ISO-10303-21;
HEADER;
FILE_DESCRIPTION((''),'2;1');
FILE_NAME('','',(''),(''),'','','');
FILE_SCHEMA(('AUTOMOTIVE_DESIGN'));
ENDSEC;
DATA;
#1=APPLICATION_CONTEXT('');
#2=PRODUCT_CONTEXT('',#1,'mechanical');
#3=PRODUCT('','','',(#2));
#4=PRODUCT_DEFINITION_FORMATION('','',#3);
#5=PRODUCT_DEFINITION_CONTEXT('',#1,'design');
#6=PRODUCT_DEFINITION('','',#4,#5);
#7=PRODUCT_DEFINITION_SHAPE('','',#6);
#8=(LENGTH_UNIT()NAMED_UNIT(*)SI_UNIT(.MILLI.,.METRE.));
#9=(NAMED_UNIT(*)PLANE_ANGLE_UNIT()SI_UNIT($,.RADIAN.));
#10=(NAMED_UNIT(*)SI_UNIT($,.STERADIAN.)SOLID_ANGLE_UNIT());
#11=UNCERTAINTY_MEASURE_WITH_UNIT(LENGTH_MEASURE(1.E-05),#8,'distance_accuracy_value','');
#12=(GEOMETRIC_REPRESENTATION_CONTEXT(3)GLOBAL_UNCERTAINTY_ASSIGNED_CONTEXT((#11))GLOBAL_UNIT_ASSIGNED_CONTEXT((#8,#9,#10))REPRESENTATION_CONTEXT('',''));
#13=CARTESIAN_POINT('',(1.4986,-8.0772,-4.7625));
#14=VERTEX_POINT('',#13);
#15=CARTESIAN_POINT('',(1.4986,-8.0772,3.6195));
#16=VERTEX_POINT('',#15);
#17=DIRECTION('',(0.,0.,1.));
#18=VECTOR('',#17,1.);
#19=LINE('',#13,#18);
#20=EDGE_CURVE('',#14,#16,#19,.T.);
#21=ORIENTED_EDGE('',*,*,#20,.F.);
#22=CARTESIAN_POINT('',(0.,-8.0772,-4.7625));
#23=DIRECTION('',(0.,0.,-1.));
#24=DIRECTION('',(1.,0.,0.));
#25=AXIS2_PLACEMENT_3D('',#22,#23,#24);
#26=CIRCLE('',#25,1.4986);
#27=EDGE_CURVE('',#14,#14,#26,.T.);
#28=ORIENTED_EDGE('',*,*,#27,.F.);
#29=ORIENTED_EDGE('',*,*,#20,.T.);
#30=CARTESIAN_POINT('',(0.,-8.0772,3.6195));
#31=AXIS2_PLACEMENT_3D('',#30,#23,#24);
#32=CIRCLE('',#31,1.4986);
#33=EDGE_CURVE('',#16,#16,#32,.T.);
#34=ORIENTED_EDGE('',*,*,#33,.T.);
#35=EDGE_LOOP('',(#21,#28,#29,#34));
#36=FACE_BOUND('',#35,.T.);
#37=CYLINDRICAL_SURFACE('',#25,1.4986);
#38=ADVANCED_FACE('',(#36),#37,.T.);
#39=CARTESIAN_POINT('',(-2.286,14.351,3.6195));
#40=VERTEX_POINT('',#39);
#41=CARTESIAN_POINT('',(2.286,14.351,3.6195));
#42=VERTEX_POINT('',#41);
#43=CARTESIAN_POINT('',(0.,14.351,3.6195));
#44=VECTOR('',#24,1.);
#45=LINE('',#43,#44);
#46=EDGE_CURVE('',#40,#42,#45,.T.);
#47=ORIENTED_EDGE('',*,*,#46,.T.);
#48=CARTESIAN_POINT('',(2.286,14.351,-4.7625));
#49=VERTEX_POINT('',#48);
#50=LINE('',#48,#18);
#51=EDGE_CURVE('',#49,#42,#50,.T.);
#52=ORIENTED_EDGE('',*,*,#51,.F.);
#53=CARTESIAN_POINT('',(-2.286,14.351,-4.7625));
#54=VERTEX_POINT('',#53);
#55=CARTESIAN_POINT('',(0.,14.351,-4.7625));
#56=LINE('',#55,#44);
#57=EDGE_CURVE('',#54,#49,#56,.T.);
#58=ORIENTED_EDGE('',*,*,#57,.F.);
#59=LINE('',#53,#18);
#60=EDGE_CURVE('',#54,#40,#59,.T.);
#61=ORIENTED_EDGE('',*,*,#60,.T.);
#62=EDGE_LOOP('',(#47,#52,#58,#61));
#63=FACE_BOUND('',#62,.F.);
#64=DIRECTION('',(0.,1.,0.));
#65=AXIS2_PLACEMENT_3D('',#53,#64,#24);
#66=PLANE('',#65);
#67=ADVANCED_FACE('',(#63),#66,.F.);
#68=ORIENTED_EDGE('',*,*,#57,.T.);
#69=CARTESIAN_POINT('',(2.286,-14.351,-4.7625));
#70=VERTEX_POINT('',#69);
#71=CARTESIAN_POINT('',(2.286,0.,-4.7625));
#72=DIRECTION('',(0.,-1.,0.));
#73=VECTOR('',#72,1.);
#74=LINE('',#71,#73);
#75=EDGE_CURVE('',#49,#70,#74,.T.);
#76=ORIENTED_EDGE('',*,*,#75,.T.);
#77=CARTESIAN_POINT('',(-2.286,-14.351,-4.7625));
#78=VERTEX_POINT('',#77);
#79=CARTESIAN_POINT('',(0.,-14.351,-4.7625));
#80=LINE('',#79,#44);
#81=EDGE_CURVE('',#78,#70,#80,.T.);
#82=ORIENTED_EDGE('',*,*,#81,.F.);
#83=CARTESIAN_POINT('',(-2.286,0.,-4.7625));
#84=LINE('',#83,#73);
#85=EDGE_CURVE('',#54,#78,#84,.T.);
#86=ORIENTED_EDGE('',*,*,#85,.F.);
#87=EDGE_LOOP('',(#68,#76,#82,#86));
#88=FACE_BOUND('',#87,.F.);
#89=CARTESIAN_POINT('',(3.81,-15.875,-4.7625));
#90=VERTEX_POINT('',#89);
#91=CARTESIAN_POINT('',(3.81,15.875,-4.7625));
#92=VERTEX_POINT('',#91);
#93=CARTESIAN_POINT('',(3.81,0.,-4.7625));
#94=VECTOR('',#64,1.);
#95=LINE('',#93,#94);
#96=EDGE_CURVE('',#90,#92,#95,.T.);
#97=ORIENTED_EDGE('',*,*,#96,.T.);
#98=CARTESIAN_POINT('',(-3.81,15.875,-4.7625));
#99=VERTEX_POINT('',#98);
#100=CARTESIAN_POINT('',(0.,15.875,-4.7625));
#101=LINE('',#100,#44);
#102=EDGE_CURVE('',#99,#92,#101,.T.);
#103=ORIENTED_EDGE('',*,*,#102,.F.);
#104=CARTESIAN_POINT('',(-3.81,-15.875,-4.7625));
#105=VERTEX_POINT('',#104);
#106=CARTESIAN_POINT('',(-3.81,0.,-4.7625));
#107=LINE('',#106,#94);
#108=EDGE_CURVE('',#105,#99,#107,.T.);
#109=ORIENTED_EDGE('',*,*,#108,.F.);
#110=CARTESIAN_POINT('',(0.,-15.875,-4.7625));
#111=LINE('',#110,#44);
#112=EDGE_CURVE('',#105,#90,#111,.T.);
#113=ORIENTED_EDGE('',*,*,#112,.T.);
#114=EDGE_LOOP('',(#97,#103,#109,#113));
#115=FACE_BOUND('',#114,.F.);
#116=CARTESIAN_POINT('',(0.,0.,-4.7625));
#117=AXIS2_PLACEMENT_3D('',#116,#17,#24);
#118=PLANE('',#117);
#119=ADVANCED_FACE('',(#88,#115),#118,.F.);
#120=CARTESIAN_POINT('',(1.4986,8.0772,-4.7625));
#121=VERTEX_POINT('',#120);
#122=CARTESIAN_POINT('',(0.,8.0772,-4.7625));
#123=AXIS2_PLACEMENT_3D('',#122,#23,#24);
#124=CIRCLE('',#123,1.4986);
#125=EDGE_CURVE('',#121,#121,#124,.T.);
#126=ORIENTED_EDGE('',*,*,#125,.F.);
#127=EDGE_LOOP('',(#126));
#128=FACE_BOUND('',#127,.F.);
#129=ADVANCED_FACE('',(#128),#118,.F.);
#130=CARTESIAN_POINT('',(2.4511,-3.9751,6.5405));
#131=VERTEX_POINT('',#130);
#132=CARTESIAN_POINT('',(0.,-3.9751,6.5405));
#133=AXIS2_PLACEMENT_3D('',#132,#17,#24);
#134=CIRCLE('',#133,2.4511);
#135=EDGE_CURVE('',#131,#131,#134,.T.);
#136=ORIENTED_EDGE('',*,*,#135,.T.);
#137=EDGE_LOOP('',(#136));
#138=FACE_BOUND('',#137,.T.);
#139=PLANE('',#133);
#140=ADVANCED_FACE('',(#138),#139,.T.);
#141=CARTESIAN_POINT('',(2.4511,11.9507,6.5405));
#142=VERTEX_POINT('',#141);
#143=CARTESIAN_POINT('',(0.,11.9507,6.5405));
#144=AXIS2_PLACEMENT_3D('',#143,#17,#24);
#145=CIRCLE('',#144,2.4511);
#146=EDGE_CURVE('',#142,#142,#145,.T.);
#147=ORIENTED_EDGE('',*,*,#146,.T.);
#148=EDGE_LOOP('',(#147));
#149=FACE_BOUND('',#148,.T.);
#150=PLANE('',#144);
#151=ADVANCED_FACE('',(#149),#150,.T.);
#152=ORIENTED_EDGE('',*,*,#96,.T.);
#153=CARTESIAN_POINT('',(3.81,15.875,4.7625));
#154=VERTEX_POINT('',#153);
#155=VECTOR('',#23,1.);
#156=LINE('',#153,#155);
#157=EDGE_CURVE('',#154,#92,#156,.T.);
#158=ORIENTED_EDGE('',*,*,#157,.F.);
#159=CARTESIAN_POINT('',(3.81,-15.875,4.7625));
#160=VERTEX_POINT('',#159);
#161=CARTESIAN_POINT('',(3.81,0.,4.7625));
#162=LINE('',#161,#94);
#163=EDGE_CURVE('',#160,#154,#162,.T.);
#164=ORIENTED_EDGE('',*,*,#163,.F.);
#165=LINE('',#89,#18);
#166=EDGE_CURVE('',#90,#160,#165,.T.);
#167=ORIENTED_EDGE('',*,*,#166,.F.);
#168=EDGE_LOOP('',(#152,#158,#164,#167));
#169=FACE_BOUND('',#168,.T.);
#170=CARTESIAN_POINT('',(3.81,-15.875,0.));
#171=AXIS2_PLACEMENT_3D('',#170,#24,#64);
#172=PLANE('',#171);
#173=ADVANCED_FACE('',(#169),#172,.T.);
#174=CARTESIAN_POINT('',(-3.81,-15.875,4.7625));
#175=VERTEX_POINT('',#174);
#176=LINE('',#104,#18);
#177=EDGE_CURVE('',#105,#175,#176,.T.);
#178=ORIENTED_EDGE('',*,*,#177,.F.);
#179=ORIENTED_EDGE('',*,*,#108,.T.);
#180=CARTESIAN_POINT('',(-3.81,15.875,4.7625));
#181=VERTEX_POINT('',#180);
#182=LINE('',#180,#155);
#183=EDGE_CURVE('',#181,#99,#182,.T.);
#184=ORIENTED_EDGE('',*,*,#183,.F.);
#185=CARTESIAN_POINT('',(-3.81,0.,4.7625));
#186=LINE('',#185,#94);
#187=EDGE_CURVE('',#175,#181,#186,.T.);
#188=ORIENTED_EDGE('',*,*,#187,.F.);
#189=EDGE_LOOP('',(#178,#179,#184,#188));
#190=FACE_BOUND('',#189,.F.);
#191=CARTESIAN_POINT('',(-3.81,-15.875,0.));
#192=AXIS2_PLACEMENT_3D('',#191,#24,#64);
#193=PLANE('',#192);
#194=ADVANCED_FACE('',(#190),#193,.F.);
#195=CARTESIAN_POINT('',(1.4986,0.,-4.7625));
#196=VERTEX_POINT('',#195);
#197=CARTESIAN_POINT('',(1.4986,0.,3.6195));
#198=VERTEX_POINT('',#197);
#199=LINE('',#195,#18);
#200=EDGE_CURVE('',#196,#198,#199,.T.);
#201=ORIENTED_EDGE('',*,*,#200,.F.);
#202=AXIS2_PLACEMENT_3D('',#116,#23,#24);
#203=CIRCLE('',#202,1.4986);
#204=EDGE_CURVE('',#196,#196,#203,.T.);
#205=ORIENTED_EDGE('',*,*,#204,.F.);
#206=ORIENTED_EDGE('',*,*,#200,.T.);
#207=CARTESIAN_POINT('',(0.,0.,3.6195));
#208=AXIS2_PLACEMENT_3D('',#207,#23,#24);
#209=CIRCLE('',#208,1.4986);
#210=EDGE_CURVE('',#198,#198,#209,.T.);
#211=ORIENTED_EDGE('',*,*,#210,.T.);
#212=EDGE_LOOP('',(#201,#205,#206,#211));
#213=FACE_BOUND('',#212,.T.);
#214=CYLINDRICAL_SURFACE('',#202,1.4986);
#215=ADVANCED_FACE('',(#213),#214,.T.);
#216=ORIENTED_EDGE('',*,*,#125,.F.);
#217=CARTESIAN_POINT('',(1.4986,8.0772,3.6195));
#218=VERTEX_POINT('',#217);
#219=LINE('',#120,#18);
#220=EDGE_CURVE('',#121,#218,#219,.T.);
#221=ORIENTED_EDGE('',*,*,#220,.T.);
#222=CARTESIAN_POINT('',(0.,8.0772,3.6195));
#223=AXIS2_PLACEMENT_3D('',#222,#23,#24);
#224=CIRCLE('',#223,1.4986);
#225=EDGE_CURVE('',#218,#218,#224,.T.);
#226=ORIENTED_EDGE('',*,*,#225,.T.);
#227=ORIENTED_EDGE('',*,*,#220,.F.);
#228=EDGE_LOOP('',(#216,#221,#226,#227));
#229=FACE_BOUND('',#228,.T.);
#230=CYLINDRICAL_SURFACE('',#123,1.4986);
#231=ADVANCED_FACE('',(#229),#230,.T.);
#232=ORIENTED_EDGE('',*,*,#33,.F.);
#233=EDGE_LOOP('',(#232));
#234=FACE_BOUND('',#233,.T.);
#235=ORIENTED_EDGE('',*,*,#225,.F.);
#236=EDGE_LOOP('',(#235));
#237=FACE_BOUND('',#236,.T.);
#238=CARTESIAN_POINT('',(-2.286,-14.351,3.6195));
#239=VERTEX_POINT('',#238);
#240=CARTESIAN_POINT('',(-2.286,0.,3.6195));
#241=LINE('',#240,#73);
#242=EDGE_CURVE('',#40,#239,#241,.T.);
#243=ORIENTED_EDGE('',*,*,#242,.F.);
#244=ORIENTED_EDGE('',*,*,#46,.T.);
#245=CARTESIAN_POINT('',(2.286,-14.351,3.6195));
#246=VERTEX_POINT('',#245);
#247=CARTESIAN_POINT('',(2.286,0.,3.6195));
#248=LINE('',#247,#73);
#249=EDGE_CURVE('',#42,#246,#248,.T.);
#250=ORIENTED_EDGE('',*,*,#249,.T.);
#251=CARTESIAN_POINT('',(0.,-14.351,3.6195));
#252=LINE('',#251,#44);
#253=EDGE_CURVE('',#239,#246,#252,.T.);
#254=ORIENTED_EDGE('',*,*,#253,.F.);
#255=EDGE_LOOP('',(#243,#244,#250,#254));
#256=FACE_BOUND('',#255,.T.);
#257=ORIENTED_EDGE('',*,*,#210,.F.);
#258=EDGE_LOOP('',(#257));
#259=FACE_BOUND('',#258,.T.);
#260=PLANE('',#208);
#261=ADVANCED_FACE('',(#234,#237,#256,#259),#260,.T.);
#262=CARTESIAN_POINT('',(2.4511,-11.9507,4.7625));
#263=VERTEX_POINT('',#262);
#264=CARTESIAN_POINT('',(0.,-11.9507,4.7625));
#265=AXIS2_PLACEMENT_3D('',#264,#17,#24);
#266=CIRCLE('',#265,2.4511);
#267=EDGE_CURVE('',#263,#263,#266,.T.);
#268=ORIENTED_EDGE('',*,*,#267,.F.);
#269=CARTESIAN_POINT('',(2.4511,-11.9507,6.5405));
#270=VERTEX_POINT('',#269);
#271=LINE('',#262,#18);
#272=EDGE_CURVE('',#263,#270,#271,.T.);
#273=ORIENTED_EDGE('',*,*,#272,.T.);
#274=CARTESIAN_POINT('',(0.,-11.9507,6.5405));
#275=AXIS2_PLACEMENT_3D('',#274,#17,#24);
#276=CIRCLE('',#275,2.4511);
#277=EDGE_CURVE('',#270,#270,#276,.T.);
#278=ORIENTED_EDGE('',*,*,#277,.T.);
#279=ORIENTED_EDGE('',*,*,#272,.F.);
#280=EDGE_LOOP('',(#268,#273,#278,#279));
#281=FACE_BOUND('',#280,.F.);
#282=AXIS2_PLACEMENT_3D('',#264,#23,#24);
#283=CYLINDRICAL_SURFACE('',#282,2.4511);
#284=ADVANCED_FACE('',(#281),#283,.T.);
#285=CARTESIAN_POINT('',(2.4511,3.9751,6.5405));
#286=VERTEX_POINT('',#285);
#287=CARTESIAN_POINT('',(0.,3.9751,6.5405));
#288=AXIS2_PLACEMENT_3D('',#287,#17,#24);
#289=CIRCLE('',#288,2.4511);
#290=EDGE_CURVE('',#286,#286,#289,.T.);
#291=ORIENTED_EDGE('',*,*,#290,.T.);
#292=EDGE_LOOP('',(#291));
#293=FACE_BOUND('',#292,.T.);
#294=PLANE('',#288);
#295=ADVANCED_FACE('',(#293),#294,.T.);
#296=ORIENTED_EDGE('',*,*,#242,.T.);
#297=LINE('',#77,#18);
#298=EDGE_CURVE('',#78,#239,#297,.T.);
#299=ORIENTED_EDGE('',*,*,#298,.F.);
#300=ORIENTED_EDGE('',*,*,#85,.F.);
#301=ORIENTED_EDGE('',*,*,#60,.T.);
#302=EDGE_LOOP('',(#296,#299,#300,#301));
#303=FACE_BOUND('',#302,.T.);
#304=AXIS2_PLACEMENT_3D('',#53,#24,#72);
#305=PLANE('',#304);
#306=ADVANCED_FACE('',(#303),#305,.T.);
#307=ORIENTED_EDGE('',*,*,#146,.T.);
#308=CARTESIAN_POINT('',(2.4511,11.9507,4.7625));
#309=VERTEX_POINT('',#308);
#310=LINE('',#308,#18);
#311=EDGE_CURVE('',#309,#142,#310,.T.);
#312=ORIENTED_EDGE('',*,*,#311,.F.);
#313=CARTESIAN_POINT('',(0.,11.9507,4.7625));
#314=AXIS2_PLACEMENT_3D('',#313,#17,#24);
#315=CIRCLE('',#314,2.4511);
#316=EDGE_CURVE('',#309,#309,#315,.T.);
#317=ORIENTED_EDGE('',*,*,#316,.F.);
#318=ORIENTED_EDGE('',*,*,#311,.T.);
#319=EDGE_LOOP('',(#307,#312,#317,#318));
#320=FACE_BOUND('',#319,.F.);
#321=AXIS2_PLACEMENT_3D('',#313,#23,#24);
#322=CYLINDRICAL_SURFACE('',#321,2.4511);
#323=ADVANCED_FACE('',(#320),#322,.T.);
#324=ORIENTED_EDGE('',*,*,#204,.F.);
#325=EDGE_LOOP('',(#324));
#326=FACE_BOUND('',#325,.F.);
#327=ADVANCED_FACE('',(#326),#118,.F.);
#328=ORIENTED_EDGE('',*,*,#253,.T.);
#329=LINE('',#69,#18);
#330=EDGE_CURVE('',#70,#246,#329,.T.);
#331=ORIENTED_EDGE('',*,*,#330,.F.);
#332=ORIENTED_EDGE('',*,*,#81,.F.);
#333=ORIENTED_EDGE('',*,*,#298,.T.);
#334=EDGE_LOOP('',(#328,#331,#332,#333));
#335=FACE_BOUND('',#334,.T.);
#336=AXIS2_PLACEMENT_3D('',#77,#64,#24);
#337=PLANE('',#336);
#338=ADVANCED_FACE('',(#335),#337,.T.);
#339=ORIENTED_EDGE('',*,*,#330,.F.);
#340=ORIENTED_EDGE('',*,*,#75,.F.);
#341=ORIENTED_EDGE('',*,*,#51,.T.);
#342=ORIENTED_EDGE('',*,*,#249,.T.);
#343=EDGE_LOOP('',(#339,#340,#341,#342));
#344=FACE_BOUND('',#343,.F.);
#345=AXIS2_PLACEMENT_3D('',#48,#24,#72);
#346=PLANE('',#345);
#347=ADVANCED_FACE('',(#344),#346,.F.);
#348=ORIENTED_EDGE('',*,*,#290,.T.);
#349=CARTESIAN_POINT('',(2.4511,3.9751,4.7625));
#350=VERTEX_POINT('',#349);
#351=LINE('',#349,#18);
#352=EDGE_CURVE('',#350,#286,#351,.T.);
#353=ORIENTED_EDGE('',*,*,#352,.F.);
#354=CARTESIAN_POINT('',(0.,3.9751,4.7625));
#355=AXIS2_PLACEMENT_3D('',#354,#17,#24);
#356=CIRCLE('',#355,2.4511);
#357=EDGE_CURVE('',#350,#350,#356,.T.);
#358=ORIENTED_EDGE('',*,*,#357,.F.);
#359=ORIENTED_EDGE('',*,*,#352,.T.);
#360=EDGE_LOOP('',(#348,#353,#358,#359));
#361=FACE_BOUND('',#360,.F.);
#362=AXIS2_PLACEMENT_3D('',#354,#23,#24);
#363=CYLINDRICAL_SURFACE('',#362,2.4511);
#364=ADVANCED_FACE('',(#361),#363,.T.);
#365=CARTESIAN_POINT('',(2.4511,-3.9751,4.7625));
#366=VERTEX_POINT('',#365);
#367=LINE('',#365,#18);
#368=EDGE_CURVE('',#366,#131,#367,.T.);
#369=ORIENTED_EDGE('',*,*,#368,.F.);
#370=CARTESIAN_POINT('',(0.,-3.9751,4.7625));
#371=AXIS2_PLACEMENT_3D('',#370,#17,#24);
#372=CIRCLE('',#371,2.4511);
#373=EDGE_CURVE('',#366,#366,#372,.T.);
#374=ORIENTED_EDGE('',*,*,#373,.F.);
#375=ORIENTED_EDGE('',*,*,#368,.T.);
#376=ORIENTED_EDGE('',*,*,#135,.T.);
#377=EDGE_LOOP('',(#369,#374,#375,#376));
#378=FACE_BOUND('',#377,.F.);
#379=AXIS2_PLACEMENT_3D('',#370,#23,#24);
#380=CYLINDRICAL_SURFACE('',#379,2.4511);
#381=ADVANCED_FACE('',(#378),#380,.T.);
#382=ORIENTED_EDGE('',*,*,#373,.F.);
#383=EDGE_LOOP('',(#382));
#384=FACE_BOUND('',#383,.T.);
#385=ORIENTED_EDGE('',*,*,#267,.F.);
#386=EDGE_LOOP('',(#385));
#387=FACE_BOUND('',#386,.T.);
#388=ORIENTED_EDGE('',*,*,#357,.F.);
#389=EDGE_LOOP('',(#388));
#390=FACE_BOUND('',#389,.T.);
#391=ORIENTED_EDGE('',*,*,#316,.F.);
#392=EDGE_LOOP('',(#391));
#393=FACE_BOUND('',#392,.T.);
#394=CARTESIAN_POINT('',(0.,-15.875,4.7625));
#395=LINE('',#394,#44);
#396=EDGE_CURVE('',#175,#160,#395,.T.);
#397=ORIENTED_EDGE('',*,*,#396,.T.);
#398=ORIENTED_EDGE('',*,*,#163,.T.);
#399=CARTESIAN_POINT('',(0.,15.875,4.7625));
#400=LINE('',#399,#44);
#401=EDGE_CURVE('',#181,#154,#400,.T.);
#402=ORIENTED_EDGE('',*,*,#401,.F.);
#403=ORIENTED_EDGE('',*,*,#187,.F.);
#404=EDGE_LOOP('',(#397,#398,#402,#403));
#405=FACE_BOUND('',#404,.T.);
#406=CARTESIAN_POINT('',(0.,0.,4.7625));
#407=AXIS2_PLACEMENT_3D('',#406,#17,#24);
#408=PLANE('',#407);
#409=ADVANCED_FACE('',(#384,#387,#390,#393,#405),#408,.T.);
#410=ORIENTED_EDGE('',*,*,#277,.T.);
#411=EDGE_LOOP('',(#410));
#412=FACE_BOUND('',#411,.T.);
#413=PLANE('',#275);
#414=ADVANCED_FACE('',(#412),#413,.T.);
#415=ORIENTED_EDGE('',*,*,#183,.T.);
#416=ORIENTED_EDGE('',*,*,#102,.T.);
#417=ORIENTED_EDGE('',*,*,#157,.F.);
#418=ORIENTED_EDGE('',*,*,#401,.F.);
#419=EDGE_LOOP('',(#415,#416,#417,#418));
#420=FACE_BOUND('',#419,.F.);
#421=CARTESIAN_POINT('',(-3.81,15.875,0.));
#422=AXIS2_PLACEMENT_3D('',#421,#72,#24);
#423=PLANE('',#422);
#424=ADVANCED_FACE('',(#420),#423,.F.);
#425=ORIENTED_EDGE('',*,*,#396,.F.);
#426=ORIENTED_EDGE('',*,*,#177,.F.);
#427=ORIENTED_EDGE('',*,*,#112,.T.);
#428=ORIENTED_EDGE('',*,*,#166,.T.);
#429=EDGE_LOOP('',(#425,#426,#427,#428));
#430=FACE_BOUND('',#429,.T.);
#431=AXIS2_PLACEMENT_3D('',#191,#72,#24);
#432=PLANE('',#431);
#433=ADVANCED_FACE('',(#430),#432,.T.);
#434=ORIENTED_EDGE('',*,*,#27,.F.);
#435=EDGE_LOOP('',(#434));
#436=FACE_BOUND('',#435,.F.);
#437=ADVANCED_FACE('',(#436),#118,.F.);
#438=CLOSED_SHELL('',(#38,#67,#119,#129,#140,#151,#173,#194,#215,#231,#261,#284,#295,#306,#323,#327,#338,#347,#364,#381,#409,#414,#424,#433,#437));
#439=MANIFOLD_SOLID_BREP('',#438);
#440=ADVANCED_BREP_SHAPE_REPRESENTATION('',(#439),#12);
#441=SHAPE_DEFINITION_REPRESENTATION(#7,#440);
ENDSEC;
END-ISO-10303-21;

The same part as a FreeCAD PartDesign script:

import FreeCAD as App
import Part
import Sketcher
from FreeCAD import Vector
Q = App.Units.Quantity

doc = App.newDocument("Part")
body = doc.addObject("PartDesign::Body", "Body")

# Sketch on XY plane
sketch1 = body.newObject("Sketcher::SketchObject", "Sketch")
sketch1.AttachmentSupport = (doc.getObject("XY_Plane"), [""])
sketch1.MapMode = "FlatFace"
sketch1.addGeometry(Part.LineSegment(Vector(-3.81, 15.875, 0), Vector(-3.81, -15.875, 0)), False)
sketch1.addGeometry(Part.LineSegment(Vector(-3.81, -15.875, 0), Vector(3.81, -15.875, 0)), False)
sketch1.addGeometry(Part.LineSegment(Vector(3.81, -15.875, 0), Vector(3.81, 15.875, 0)), False)
sketch1.addGeometry(Part.LineSegment(Vector(3.81, 15.875, 0), Vector(-3.81, 15.875, 0)), False)
sketch1.addConstraint(Sketcher.Constraint("Coincident", 0, 2, 1, 1))
sketch1.addConstraint(Sketcher.Constraint("Coincident", 1, 2, 2, 1))
sketch1.addConstraint(Sketcher.Constraint("Coincident", 2, 2, 3, 1))
sketch1.addConstraint(Sketcher.Constraint("Coincident", 3, 2, 0, 1))
sketch1.addConstraint(Sketcher.Constraint("Vertical", 0))
sketch1.addConstraint(Sketcher.Constraint("Horizontal", 1))
sketch1.addConstraint(Sketcher.Constraint("Vertical", 2))
sketch1.addConstraint(Sketcher.Constraint("Horizontal", 3))
sketch1.addConstraint(Sketcher.Constraint("Symmetric", 0, 2, 2, 2, -1, 1))
sketch1.addConstraint(Sketcher.Constraint("DistanceX", 1, 1, 1, 2, Q("0.3 in")))
sketch1.addConstraint(Sketcher.Constraint("DistanceY", 0, 2, 0, 1, Q("1.25 in")))
pad1 = body.newObject("PartDesign::Pad", "Pad")
pad1.Profile = sketch1
pad1.Length = Q("0.375 in")
pad1.Midplane = True

# Sketch on XY plane
sketch2 = body.newObject("Sketcher::SketchObject", "Sketch001")
sketch2.AttachmentSupport = (doc.getObject("XY_Plane"), [""])
sketch2.MapMode = "FlatFace"
sketch2.AttachmentOffset = App.Placement(Vector(0, 0, 0.1875 * 25.4), App.Rotation())
sketch2.addGeometry(Part.Circle(Vector(0, 11.9507, 0), Vector(0, 0, 1), 2.4511), False)
sketch2.addGeometry(Part.Circle(Vector(0, 3.9751, 0), Vector(0, 0, 1), 2.4511), False)
sketch2.addGeometry(Part.Circle(Vector(0, -3.9751, 0), Vector(0, 0, 1), 2.4511), False)
sketch2.addGeometry(Part.Circle(Vector(0, -11.9507, 0), Vector(0, 0, 1), 2.4511), False)
sketch2.addConstraint(Sketcher.Constraint("Equal", 0, 1))
sketch2.addConstraint(Sketcher.Constraint("Equal", 1, 2))
sketch2.addConstraint(Sketcher.Constraint("Equal", 2, 3))
sketch2.addConstraint(Sketcher.Constraint("Symmetric", 1, 3, 2, 3, -1, 1))
sketch2.addConstraint(Sketcher.Constraint("Symmetric", 0, 3, 3, 3, -1, 1))
sketch2.addConstraint(Sketcher.Constraint("PointOnObject", 0, 3, -2))
sketch2.addConstraint(Sketcher.Constraint("PointOnObject", 1, 3, -2))
sketch2.addConstraint(Sketcher.Constraint("Diameter", 0, Q("0.193 in")))
sketch2.addConstraint(Sketcher.Constraint("DistanceY", 1, 3, 0, 3, Q("0.314 in")))
sketch2.addConstraint(Sketcher.Constraint("DistanceY", 2, 3, 1, 3, Q("0.313 in")))
pad2 = body.newObject("PartDesign::Pad", "Pad001")
pad2.Profile = sketch2
pad2.Length = Q("0.07 in")

# Sketch on XY plane
sketch3 = body.newObject("Sketcher::SketchObject", "Sketch002")
sketch3.AttachmentSupport = (doc.getObject("XY_Plane"), [""])
sketch3.MapMode = "FlatFace"
sketch3.AttachmentOffset = App.Placement(Vector(0, 0, -0.1875 * 25.4), App.Rotation())
sketch3.addGeometry(Part.LineSegment(Vector(-2.286, -14.351, 0), Vector(-2.286, 14.351, 0)), False)
sketch3.addGeometry(Part.LineSegment(Vector(-2.286, 14.351, 0), Vector(2.286, 14.351, 0)), False)
sketch3.addGeometry(Part.LineSegment(Vector(2.286, 14.351, 0), Vector(2.286, -14.351, 0)), False)
sketch3.addGeometry(Part.LineSegment(Vector(2.286, -14.351, 0), Vector(-2.286, -14.351, 0)), False)
sketch3.addGeometry(Part.Circle(Vector(0, 8.0772, 0), Vector(0, 0, 1), 1.4986), False)
sketch3.addGeometry(Part.Circle(Vector(0, 0, 0), Vector(0, 0, 1), 1.4986), False)
sketch3.addGeometry(Part.Circle(Vector(0, -8.0772, 0), Vector(0, 0, 1), 1.4986), False)
sketch3.addConstraint(Sketcher.Constraint("Coincident", 0, 2, 1, 1))
sketch3.addConstraint(Sketcher.Constraint("Coincident", 1, 2, 2, 1))
sketch3.addConstraint(Sketcher.Constraint("Coincident", 2, 2, 3, 1))
sketch3.addConstraint(Sketcher.Constraint("Coincident", 3, 2, 0, 1))
sketch3.addConstraint(Sketcher.Constraint("Vertical", 0))
sketch3.addConstraint(Sketcher.Constraint("Horizontal", 1))
sketch3.addConstraint(Sketcher.Constraint("Vertical", 2))
sketch3.addConstraint(Sketcher.Constraint("Horizontal", 3))
sketch3.addConstraint(Sketcher.Constraint("Coincident", 5, 3, -1, 1))
sketch3.addConstraint(Sketcher.Constraint("Equal", 4, 5))
sketch3.addConstraint(Sketcher.Constraint("Equal", 5, 6))
sketch3.addConstraint(Sketcher.Constraint("Symmetric", 4, 3, 6, 3, -1, 1))
sketch3.addConstraint(Sketcher.Constraint("Symmetric", 0, 2, 2, 2, -1, 1))
sketch3.addConstraint(Sketcher.Constraint("PointOnObject", 4, 3, -2))
sketch3.addConstraint(Sketcher.Constraint("Diameter", 4, Q("0.118 in")))
sketch3.addConstraint(Sketcher.Constraint("DistanceX", 1, 1, 1, 2, Q("0.18 in")))
sketch3.addConstraint(Sketcher.Constraint("DistanceY", 0, 1, 0, 2, Q("1.13 in")))
sketch3.addConstraint(Sketcher.Constraint("DistanceY", -1, 1, 4, 3, Q("0.318 in")))
pocket1 = body.newObject("PartDesign::Pocket", "Pocket")
pocket1.Profile = sketch3
pocket1.Length = Q("0.33 in")
pocket1.Reversed = True

doc.recompute()
